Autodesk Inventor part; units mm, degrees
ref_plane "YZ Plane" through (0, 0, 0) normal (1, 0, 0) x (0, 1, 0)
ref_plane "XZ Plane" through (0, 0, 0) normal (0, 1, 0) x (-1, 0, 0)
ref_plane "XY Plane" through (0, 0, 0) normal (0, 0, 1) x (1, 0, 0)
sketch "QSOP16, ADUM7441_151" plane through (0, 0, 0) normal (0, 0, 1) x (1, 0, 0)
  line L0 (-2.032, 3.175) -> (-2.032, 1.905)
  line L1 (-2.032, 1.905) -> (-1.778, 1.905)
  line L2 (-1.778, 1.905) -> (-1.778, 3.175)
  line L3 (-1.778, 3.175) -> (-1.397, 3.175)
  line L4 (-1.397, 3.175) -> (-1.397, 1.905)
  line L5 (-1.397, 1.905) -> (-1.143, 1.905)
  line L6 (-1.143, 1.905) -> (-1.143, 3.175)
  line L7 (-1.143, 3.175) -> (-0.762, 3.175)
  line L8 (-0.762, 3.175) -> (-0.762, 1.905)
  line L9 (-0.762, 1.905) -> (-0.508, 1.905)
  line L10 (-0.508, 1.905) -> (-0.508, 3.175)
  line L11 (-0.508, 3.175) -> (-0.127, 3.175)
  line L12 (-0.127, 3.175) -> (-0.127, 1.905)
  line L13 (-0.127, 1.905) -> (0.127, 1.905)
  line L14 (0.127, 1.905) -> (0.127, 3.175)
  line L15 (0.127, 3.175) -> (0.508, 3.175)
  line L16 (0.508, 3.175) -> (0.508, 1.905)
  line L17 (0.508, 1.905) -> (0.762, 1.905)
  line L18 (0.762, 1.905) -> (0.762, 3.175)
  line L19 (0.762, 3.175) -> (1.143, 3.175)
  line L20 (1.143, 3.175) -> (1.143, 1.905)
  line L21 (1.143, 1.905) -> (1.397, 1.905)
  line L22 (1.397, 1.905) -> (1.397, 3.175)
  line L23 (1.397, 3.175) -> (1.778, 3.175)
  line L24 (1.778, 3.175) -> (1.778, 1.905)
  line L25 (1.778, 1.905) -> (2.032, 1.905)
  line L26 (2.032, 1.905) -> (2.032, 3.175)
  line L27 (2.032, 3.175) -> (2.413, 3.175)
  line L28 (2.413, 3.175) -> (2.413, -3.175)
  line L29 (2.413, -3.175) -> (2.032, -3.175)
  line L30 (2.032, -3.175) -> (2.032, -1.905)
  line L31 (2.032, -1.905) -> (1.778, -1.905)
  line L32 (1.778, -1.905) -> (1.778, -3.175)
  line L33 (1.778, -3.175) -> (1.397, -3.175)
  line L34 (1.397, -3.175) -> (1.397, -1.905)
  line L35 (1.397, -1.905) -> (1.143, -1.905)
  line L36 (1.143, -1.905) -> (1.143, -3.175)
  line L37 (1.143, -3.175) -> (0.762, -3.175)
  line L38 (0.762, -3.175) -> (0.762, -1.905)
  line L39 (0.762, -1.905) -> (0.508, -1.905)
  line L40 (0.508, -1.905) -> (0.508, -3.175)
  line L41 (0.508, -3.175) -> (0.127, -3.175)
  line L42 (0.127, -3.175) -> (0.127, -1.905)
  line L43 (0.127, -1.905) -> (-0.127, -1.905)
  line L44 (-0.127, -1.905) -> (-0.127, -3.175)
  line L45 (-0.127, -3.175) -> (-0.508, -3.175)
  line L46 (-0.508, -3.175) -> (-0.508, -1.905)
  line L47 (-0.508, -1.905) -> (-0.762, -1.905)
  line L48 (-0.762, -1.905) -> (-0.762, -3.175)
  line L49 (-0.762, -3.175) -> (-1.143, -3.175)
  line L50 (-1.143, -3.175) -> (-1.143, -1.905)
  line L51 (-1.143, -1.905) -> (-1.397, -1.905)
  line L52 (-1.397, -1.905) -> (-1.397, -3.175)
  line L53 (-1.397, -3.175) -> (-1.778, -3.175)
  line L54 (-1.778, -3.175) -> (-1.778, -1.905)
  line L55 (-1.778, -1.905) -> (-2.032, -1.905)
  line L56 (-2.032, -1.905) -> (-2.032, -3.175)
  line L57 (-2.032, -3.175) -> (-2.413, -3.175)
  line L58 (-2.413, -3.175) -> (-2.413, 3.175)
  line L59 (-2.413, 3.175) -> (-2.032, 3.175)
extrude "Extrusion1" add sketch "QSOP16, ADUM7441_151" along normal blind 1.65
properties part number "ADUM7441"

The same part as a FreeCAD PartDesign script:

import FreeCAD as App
import Part
import Sketcher
Q = App.Units.Quantity


def add_polygon(sketch, points):
    """Adds a closed chain of lines whose ends are joined by coincident constraints."""
    first, n = sketch.GeometryCount, len(points)
    for a, b in zip(points, points[1:] + points[:1]):
        sketch.addGeometry(Part.LineSegment(App.Vector(*a, 0), App.Vector(*b, 0)), False)
    for i in range(n):
        sketch.addConstraint(Sketcher.Constraint("Coincident", first + i, 2, first + (i + 1) % n, 1))

doc = App.newDocument("Part")
params = doc.addObject("Spreadsheet::Sheet", "Params")
for row, (alias, value) in enumerate([
    ("sketch1_width", "0.01 in"),
    ("sketch1_height", "0.05 in"),
    ("sketch1_height2", "0.25 in"),
    ("sketch1_width2", "0.015 in"),
    ("pad1_length", "1.65 mm"),
], start=1):
    params.set(f"A{row}", alias)
    params.set(f"B{row}", "=" + value)
    params.setAlias(f"B{row}", alias)

body = doc.addObject("PartDesign::Body", "Body")

# Sketch on XY plane
sketch1 = body.newObject("Sketcher::SketchObject", "Sketch")
sketch1.AttachmentSupport = (doc.getObject("XY_Plane"), [""])
sketch1.MapMode = "FlatFace"
add_polygon(sketch1, [(-2.032, 1.905), (-2.032, 3.175), (-2.413, 3.175), (-2.413, -3.175), (-2.032, -3.175), (-2.032, -1.905), (-1.778, -1.905), (-1.778, -3.175), (-1.397, -3.175), (-1.397, -1.905), (-1.143, -1.905), (-1.143, -3.175), (-0.762, -3.175), (-0.762, -1.905), (-0.508, -1.905), (-0.508, -3.175), (-0.127, -3.175), (-0.127, -1.905), (0.127, -1.905), (0.127, -3.175), (0.508, -3.175), (0.508, -1.905), (0.762, -1.905), (0.762, -3.175), (1.143, -3.175), (1.143, -1.905), (1.397, -1.905), (1.397, -3.175), (1.778, -3.175), (1.778, -1.905), (2.032, -1.905), (2.032, -3.175), (2.413, -3.175), (2.413, 3.175), (2.032, 3.175), (2.032, 1.905), (1.778, 1.905), (1.778, 3.175), (1.397, 3.175), (1.397, 1.905), (1.143, 1.905), (1.143, 3.175), (0.762, 3.175), (0.762, 1.905), (0.508, 1.905), (0.508, 3.175), (0.127, 3.175), (0.127, 1.905), (-0.127, 1.905), (-0.127, 3.175), (-0.508, 3.175), (-0.508, 1.905), (-0.762, 1.905), (-0.762, 3.175), (-1.143, 3.175), (-1.143, 1.905), (-1.397, 1.905), (-1.397, 3.175), (-1.778, 3.175), (-1.778, 1.905)])  # lines 0-59
sketch1.addConstraint(Sketcher.Constraint("Vertical", 0))
sketch1.addConstraint(Sketcher.Constraint("Horizontal", 1))
sketch1.addConstraint(Sketcher.Constraint("Vertical", 2))
sketch1.addConstraint(Sketcher.Constraint("Horizontal", 3))
sketch1.addConstraint(Sketcher.Constraint("Vertical", 4))
sketch1.addConstraint(Sketcher.Constraint("Horizontal", 5))
sketch1.addConstraint(Sketcher.Constraint("Vertical", 6))
sketch1.addConstraint(Sketcher.Constraint("Horizontal", 7))
sketch1.addConstraint(Sketcher.Constraint("Vertical", 8))
sketch1.addConstraint(Sketcher.Constraint("Horizontal", 9))
sketch1.addConstraint(Sketcher.Constraint("Vertical", 10))
sketch1.addConstraint(Sketcher.Constraint("Horizontal", 11))
sketch1.addConstraint(Sketcher.Constraint("Vertical", 12))
sketch1.addConstraint(Sketcher.Constraint("Horizontal", 13))
sketch1.addConstraint(Sketcher.Constraint("Vertical", 14))
sketch1.addConstraint(Sketcher.Constraint("Horizontal", 15))
sketch1.addConstraint(Sketcher.Constraint("Vertical", 16))
sketch1.addConstraint(Sketcher.Constraint("Horizontal", 17))
sketch1.addConstraint(Sketcher.Constraint("Vertical", 18))
sketch1.addConstraint(Sketcher.Constraint("Horizontal", 19))
sketch1.addConstraint(Sketcher.Constraint("Vertical", 20))
sketch1.addConstraint(Sketcher.Constraint("Horizontal", 21))
sketch1.addConstraint(Sketcher.Constraint("Vertical", 22))
sketch1.addConstraint(Sketcher.Constraint("Horizontal", 23))
sketch1.addConstraint(Sketcher.Constraint("Vertical", 24))
sketch1.addConstraint(Sketcher.Constraint("Horizontal", 25))
sketch1.addConstraint(Sketcher.Constraint("Vertical", 26))
sketch1.addConstraint(Sketcher.Constraint("Horizontal", 27))
sketch1.addConstraint(Sketcher.Constraint("Vertical", 28))
sketch1.addConstraint(Sketcher.Constraint("Horizontal", 29))
sketch1.addConstraint(Sketcher.Constraint("Vertical", 30))
sketch1.addConstraint(Sketcher.Constraint("Horizontal", 31))
sketch1.addConstraint(Sketcher.Constraint("Vertical", 32))
sketch1.addConstraint(Sketcher.Constraint("Horizontal", 33))
sketch1.addConstraint(Sketcher.Constraint("Vertical", 34))
sketch1.addConstraint(Sketcher.Constraint("Horizontal", 35))
sketch1.addConstraint(Sketcher.Constraint("Vertical", 36))
sketch1.addConstraint(Sketcher.Constraint("Horizontal", 37))
sketch1.addConstraint(Sketcher.Constraint("Vertical", 38))
sketch1.addConstraint(Sketcher.Constraint("Horizontal", 39))
sketch1.addConstraint(Sketcher.Constraint("Vertical", 40))
sketch1.addConstraint(Sketcher.Constraint("Horizontal", 41))
sketch1.addConstraint(Sketcher.Constraint("Vertical", 42))
sketch1.addConstraint(Sketcher.Constraint("Horizontal", 43))
sketch1.addConstraint(Sketcher.Constraint("Vertical", 44))
sketch1.addConstraint(Sketcher.Constraint("Horizontal", 45))
sketch1.addConstraint(Sketcher.Constraint("Vertical", 46))
sketch1.addConstraint(Sketcher.Constraint("Horizontal", 47))
sketch1.addConstraint(Sketcher.Constraint("Vertical", 48))
sketch1.addConstraint(Sketcher.Constraint("Horizontal", 49))
sketch1.addConstraint(Sketcher.Constraint("Vertical", 50))
sketch1.addConstraint(Sketcher.Constraint("Horizontal", 51))
sketch1.addConstraint(Sketcher.Constraint("Vertical", 52))
sketch1.addConstraint(Sketcher.Constraint("Horizontal", 53))
sketch1.addConstraint(Sketcher.Constraint("Vertical", 54))
sketch1.addConstraint(Sketcher.Constraint("Horizontal", 55))
sketch1.addConstraint(Sketcher.Constraint("Vertical", 56))
sketch1.addConstraint(Sketcher.Constraint("Horizontal", 57))
sketch1.addConstraint(Sketcher.Constraint("Vertical", 58))
sketch1.addConstraint(Sketcher.Constraint("Horizontal", 59))
sketch1.addConstraint(Sketcher.Constraint("Symmetric", 0, 2, 30, 2, -1, 1))
sketch1.addConstraint(Sketcher.Constraint("Symmetric", 2, 2, 32, 2, -1, 1))
sketch1.addConstraint(Sketcher.Constraint("Symmetric", 4, 2, 34, 2, -1, 1))
sketch1.addConstraint(Sketcher.Constraint("Symmetric", 6, 2, 36, 2, -1, 1))
sketch1.addConstraint(Sketcher.Constraint("Symmetric", 8, 2, 38, 2, -1, 1))
sketch1.addConstraint(Sketcher.Constraint("Symmetric", 10, 2, 40, 2, -1, 1))
sketch1.addConstraint(Sketcher.Constraint("Symmetric", 12, 2, 42, 2, -1, 1))
sketch1.addConstraint(Sketcher.Constraint("Symmetric", 14, 2, 44, 2, -1, 1))
sketch1.addConstraint(Sketcher.Constraint("Symmetric", 16, 2, 46, 2, -1, 1))
sketch1.addConstraint(Sketcher.Constraint("Symmetric", 18, 2, 48, 2, -1, 1))
sketch1.addConstraint(Sketcher.Constraint("Symmetric", 20, 2, 50, 2, -1, 1))
sketch1.addConstraint(Sketcher.Constraint("Symmetric", 22, 2, 52, 2, -1, 1))
sketch1.addConstraint(Sketcher.Constraint("Symmetric", 24, 2, 54, 2, -1, 1))
sketch1.addConstraint(Sketcher.Constraint("Symmetric", 26, 2, 56, 2, -1, 1))
sketch1.addConstraint(Sketcher.Constraint("Symmetric", 28, 2, 58, 2, -1, 1))
sketch1.addConstraint(Sketcher.Constraint("Symmetric", 15, 2, 18, 2, -2))
sketch1.addConstraint(Sketcher.Constraint("Symmetric", 13, 2, 20, 2, -2))
sketch1.addConstraint(Sketcher.Constraint("Symmetric", 11, 2, 22, 2, -2))
sketch1.addConstraint(Sketcher.Constraint("Symmetric", 9, 2, 24, 2, -2))
sketch1.addConstraint(Sketcher.Constraint("Symmetric", 7, 2, 26, 2, -2))
sketch1.addConstraint(Sketcher.Constraint("Symmetric", 5, 2, 28, 2, -2))
sketch1.addConstraint(Sketcher.Constraint("Symmetric", 3, 2, 30, 2, -2))
sketch1.addConstraint(Sketcher.Constraint("Horizontal", 3, 2, 6, 2))
sketch1.addConstraint(Sketcher.Constraint("Horizontal", 5, 2, 8, 2))
sketch1.addConstraint(Sketcher.Constraint("Horizontal", 7, 2, 10, 2))
sketch1.addConstraint(Sketcher.Constraint("Horizontal", 9, 2, 12, 2))
sketch1.addConstraint(Sketcher.Constraint("Horizontal", 11, 2, 14, 2))
sketch1.addConstraint(Sketcher.Constraint("Horizontal", 13, 2, 16, 2))
sketch1.addConstraint(Sketcher.Constraint("Equal", 3, 7))
sketch1.addConstraint(Sketcher.Constraint("Equal", 5, 9))
sketch1.addConstraint(Sketcher.Constraint("Equal", 7, 11))
sketch1.addConstraint(Sketcher.Constraint("Equal", 9, 13))
sketch1.addConstraint(Sketcher.Constraint("Equal", 11, 15))
sketch1.addConstraint(Sketcher.Constraint("Equal", 13, 17))
sketch1.addConstraint(Sketcher.Constraint("DistanceX", 5, 1, 5, 2, Q("0.01 in")))
sketch1.addConstraint(Sketcher.Constraint("DistanceY", 0, 1, 0, 2, Q("0.05 in")))
sketch1.addConstraint(Sketcher.Constraint("DistanceY", 2, 2, 2, 1, Q("0.25 in")))
sketch1.addConstraint(Sketcher.Constraint("DistanceX", 1, 2, 1, 1, Q("0.015 in")))
sketch1.setExpression("Constraints[154]", "Params.sketch1_width")
sketch1.setExpression("Constraints[155]", "Params.sketch1_height")
sketch1.setExpression("Constraints[156]", "Params.sketch1_height2")
sketch1.setExpression("Constraints[157]", "Params.sketch1_width2")
pad1 = body.newObject("PartDesign::Pad", "Pad")
pad1.Profile = sketch1
pad1.setExpression("Length", "Params.pad1_length")

doc.recompute()
